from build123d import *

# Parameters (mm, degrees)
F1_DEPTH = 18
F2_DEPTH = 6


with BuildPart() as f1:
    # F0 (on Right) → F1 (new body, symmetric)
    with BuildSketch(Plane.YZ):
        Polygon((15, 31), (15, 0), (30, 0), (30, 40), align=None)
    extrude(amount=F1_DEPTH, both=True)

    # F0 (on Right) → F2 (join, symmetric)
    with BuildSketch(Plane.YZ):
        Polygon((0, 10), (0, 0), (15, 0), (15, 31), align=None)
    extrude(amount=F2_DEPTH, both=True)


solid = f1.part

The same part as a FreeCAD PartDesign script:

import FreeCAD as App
import Part
import Sketcher


def add_polygon(sketch, points):
    """Adds a closed chain of lines whose ends are joined by coincident constraints."""
    first, n = sketch.GeometryCount, len(points)
    for a, b in zip(points, points[1:] + points[:1]):
        sketch.addGeometry(Part.LineSegment(App.Vector(*a, 0), App.Vector(*b, 0)), False)
    for i in range(n):
        sketch.addConstraint(Sketcher.Constraint("Coincident", first + i, 2, first + (i + 1) % n, 1))

doc = App.newDocument("Part")
body = doc.addObject("PartDesign::Body", "Body")

# Sketch on YZ plane
sketch1 = body.newObject("Sketcher::SketchObject", "Sketch")
sketch1.AttachmentSupport = (doc.getObject("YZ_Plane"), [""])
sketch1.MapMode = "FlatFace"
add_polygon(sketch1, [(15, 31), (15, 0), (30, 0), (30, 40)])  # lines 0-3
sketch1.addConstraint(Sketcher.Constraint("Vertical", 0))
sketch1.addConstraint(Sketcher.Constraint("Horizontal", 1))
sketch1.addConstraint(Sketcher.Constraint("Vertical", 2))
sketch1.addConstraint(Sketcher.Constraint("PointOnObject", 0, 2, -1))
sketch1.addConstraint(Sketcher.Constraint("DistanceX", 1, 1, 1, 2, 15.0))
sketch1.addConstraint(Sketcher.Constraint("DistanceY", 0, 2, 0, 1, 31.0))
sketch1.addConstraint(Sketcher.Constraint("DistanceY", 2, 1, 2, 2, 40.0))
sketch1.addConstraint(Sketcher.Constraint("DistanceX", -1, 1, 0, 2, 15.0))
pad1 = body.newObject("PartDesign::Pad", "Pad")
pad1.Profile = sketch1
pad1.Length = 36
pad1.Midplane = True

# Sketch on YZ plane
sketch2 = body.newObject("Sketcher::SketchObject", "Sketch001")
sketch2.AttachmentSupport = (doc.getObject("YZ_Plane"), [""])
sketch2.MapMode = "FlatFace"
add_polygon(sketch2, [(0, 10), (0, 0), (15, 0), (15, 31)])  # lines 0-3
sketch2.addConstraint(Sketcher.Constraint("Vertical", 0))
sketch2.addConstraint(Sketcher.Constraint("Horizontal", 1))
sketch2.addConstraint(Sketcher.Constraint("Vertical", 2))
sketch2.addConstraint(Sketcher.Constraint("Coincident", 0, 2, -1, 1))
sketch2.addConstraint(Sketcher.Constraint("DistanceX", 1, 1, 1, 2, 15.0))
sketch2.addConstraint(Sketcher.Constraint("DistanceY", 0, 2, 0, 1, 10.0))
sketch2.addConstraint(Sketcher.Constraint("DistanceY", 2, 1, 2, 2, 31.0))
pad2 = body.newObject("PartDesign::Pad", "Pad001")
pad2.Profile = sketch2
pad2.Length = 12
pad2.Midplane = True

doc.recompute()
